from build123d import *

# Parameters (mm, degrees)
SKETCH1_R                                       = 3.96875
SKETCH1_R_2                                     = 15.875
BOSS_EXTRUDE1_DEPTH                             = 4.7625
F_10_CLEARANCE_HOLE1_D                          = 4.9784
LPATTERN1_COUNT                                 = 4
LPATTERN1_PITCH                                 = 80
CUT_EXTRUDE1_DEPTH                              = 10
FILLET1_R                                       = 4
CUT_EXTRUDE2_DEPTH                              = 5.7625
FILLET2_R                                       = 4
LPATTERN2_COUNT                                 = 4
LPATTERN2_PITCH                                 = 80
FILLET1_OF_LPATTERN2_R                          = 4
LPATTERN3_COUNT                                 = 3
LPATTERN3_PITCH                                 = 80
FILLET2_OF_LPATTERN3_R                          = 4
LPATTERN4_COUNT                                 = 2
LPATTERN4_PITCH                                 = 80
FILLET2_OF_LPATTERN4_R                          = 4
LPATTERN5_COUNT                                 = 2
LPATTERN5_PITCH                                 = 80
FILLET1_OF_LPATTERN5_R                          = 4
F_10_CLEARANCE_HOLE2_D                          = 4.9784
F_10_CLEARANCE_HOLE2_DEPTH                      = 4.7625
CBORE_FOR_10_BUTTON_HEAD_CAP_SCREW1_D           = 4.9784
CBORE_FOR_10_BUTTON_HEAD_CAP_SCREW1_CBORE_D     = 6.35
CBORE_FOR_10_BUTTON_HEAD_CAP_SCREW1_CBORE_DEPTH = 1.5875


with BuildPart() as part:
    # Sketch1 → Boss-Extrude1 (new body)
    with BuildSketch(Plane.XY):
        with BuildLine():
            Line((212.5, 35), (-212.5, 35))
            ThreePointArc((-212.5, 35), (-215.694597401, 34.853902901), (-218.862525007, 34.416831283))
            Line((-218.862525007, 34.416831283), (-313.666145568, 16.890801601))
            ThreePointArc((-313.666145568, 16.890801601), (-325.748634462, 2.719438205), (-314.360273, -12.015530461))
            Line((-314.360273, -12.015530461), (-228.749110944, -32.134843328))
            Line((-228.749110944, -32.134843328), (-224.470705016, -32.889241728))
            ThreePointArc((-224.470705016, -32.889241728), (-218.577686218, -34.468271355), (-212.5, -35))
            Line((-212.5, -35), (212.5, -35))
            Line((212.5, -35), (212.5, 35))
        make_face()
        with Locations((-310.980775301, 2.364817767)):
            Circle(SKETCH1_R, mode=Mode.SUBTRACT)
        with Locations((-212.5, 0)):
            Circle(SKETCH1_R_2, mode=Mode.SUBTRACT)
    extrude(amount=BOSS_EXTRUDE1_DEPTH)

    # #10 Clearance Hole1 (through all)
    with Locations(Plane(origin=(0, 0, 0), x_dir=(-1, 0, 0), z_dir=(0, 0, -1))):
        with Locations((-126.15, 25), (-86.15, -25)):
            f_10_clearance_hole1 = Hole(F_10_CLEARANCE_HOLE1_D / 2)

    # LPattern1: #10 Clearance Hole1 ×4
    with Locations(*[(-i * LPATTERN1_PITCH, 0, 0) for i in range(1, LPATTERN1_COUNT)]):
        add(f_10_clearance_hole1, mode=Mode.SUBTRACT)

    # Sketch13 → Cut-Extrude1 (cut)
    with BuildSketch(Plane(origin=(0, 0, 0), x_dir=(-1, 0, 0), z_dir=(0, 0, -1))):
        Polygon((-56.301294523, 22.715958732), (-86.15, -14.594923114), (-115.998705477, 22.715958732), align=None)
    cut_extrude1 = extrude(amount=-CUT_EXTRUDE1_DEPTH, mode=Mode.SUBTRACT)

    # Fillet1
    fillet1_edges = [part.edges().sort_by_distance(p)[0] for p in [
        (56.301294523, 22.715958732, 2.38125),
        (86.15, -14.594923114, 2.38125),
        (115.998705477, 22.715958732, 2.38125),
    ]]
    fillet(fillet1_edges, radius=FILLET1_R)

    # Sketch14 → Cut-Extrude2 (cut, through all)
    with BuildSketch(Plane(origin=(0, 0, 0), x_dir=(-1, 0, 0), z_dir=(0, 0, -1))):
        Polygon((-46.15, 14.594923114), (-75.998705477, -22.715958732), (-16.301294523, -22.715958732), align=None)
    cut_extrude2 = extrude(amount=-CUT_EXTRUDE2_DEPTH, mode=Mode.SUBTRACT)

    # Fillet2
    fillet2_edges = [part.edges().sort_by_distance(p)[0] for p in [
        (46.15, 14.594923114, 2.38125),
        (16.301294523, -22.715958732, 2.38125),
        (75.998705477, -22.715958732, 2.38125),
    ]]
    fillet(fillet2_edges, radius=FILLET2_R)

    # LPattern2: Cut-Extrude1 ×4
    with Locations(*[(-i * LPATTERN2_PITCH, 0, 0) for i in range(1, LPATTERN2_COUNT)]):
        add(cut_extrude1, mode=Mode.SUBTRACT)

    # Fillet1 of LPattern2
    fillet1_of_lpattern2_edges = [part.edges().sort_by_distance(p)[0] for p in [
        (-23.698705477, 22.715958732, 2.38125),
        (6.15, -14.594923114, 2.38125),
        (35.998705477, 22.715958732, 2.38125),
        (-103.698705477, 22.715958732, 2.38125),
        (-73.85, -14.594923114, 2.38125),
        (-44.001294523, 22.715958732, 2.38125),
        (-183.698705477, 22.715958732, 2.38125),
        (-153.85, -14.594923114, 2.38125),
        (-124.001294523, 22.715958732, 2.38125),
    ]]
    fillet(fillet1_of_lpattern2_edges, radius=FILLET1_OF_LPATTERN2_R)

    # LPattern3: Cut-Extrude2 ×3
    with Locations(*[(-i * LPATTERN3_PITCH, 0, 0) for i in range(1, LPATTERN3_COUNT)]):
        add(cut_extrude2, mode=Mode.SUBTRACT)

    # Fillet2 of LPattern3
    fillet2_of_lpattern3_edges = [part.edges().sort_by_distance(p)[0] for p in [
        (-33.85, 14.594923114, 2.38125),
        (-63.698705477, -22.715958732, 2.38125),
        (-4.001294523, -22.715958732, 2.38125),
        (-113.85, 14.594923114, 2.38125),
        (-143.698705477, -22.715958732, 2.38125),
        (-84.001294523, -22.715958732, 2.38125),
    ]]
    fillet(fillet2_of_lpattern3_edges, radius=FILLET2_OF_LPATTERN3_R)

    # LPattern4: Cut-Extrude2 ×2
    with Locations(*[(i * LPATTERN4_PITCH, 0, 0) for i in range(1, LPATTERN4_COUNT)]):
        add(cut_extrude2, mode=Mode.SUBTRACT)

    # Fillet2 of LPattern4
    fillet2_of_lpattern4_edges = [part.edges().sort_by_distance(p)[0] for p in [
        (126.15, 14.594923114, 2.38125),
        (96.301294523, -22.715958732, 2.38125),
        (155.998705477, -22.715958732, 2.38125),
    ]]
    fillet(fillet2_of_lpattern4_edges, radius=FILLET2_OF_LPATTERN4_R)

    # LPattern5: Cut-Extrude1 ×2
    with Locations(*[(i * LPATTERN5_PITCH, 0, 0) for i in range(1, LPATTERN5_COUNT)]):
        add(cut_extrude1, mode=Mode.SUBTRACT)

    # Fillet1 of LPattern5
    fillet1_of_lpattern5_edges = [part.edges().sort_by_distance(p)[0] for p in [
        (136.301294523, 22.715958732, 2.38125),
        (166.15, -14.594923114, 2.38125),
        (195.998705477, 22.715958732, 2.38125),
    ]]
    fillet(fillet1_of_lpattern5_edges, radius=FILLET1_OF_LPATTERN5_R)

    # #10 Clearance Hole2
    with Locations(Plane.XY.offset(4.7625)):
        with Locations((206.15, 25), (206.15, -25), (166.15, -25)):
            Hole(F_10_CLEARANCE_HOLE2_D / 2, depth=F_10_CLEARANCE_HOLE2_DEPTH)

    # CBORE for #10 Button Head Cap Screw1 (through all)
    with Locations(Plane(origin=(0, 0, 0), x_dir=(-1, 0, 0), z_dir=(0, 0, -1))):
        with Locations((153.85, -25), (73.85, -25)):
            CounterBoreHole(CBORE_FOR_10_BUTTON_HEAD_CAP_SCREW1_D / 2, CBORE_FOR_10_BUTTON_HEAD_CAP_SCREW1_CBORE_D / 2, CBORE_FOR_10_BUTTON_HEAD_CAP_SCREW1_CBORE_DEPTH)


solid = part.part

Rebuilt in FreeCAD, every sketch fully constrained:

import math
import FreeCAD as App
import Part
import Sketcher

V = App.Vector
Q = App.Units.Quantity


def edges_at(feature, points):
    """Names of the edges that pass closest to the given points."""
    edges = feature.Shape.Edges
    near = lambda p: min(range(len(edges)), key=lambda i: edges[i].distToShape(Part.Vertex(*p))[0])
    return sorted({f"Edge{near(p) + 1}" for p in points})

doc = App.newDocument("Part")
body = doc.addObject("PartDesign::Body", "Body")

# Sketch on XY plane
sketch1 = body.newObject("Sketcher::SketchObject", "Sketch")
sketch1.AttachmentSupport = (doc.getObject("XY_Plane"), [""])
sketch1.MapMode = "FlatFace"
sketch1.addGeometry(Part.LineSegment(V(212.5, 35, 0), V(-212.5, 35, 0)), False)
sketch1.addGeometry(Part.ArcOfCircle(Part.Circle(V(-212.5, 0, 0), V(0, 0, 1), 35), math.radians(90), math.radians(100.473832)), False)
sketch1.addGeometry(Part.LineSegment(V(-218.862525, 34.416831, 0), V(-313.666146, 16.890802, 0)), False)
sketch1.addGeometry(Part.ArcOfCircle(Part.Circle(V(-310.980775, 2.364818, 0), V(0, 0, 1), 14.772116), math.radians(100.473832), math.radians(256.775011)), False)
sketch1.addGeometry(Part.LineSegment(V(-314.360273, -12.01553, 0), V(-228.749111, -32.134843, 0)), False)
sketch1.addGeometry(Part.LineSegment(V(-228.749111, -32.134843, 0), V(-224.470705, -32.889242, 0)), False)
sketch1.addGeometry(Part.ArcOfCircle(Part.Circle(V(-212.5, 0, 0), V(0, 0, 1), 35), math.radians(-110), math.radians(-90)), False)
sketch1.addGeometry(Part.LineSegment(V(-212.5, -35, 0), V(212.5, -35, 0)), False)
sketch1.addGeometry(Part.LineSegment(V(212.5, -35, 0), V(212.5, 35, 0)), False)
sketch1.addGeometry(Part.Circle(V(-310.980775, 2.364818, 0), V(0, 0, 1), 3.96875), False)
sketch1.addGeometry(Part.Circle(V(-212.5, 0, 0), V(0, 0, 1), 15.875), False)
sketch1.addConstraint(Sketcher.Constraint("Tangent", 0, 2, 1, 1))
sketch1.addConstraint(Sketcher.Constraint("Tangent", 1, 2, 2, 1))
sketch1.addConstraint(Sketcher.Constraint("Tangent", 2, 2, 3, 1))
sketch1.addConstraint(Sketcher.Constraint("Tangent", 3, 2, 4, 1))
sketch1.addConstraint(Sketcher.Constraint("Coincident", 4, 2, 5, 1))
sketch1.addConstraint(Sketcher.Constraint("Coincident", 5, 2, 6, 1))
sketch1.addConstraint(Sketcher.Constraint("Tangent", 6, 2, 7, 1))
sketch1.addConstraint(Sketcher.Constraint("Coincident", 7, 2, 8, 1))
sketch1.addConstraint(Sketcher.Constraint("Coincident", 8, 2, 0, 1))
sketch1.addConstraint(Sketcher.Constraint("Horizontal", 0))
sketch1.addConstraint(Sketcher.Constraint("Horizontal", 7))
sketch1.addConstraint(Sketcher.Constraint("Vertical", 8))
sketch1.addConstraint(Sketcher.Constraint("Coincident", 6, 3, 1, 3))
sketch1.addConstraint(Sketcher.Constraint("Coincident", 9, 3, 3, 3))
sketch1.addConstraint(Sketcher.Constraint("Coincident", 10, 3, 1, 3))
sketch1.addConstraint(Sketcher.Constraint("Equal", 1, 6))
sketch1.addConstraint(Sketcher.Constraint("Symmetric", 0, 2, 7, 2, -1, 1))
sketch1.addConstraint(Sketcher.Constraint("Radius", 1, Q("35 mm")))
sketch1.addConstraint(Sketcher.Constraint("Diameter", 10, Q("31.75 mm")))
sketch1.addConstraint(Sketcher.Constraint("DistanceX", 0, 2, 0, 1, Q("425 mm")))
sketch1.addConstraint(Sketcher.Constraint("Angle", 5, Q("-10 deg")))
sketch1.addConstraint(Sketcher.Constraint("Diameter", 9, Q("7.9375 mm")))
sketch1.addConstraint(Sketcher.Constraint("Distance", 2, Q("96.41 mm")))
sketch1.addConstraint(Sketcher.Constraint("Radius", 3, Q("14.772116 mm")))
sketch1.addConstraint(Sketcher.Constraint("DistanceY", -1, 1, 2, 2, Q("16.890802 mm")))
sketch1.addConstraint(Sketcher.Constraint("DistanceY", 5, 2, 4, 2, Q("0.754398 mm")))
sketch1.addConstraint(Sketcher.Constraint("DistanceX", 4, 2, -1, 1, Q("228.749111 mm")))
pad1 = body.newObject("PartDesign::Pad", "Pad")
pad1.Profile = sketch1
pad1.Length = 4.7625

# Sketch on XY plane
sketch2 = body.newObject("Sketcher::SketchObject", "Sketch001")
sketch2.AttachmentSupport = (doc.getObject("XY_Plane"), [""])
sketch2.MapMode = "FlatFace"
sketch2.addGeometry(Part.Circle(V(126.15, 25, 0), V(0, 0, 1), 2.4892), False)
sketch2.addGeometry(Part.Circle(V(86.15, -25, 0), V(0, 0, 1), 2.4892), False)
sketch2.addConstraint(Sketcher.Constraint("Equal", 0, 1))
sketch2.addConstraint(Sketcher.Constraint("DistanceY", -1, 1, 0, 3, Q("25 mm")))
sketch2.addConstraint(Sketcher.Constraint("DistanceY", 1, 3, -1, 1, Q("25 mm")))
sketch2.addConstraint(Sketcher.Constraint("DistanceX", 1, 3, 0, 3, Q("40 mm")))
sketch2.addConstraint(Sketcher.Constraint("Diameter", 0, Q("4.9784 mm")))
sketch2.addConstraint(Sketcher.Constraint("DistanceX", -1, 1, 0, 3, Q("126.15 mm")))
doc.recompute()
hole = body.newObject("PartDesign::Hole", "Hole")
hole.Profile = sketch2
hole.ThreadType = "None"
hole.Diameter = 4.9784
hole.DepthType = "ThroughAll"
hole.Reversed = True
doc.recompute()

linearpattern = body.newObject("PartDesign::LinearPattern", "LinearPattern")
linearpattern.Originals = [hole]
linearpattern.Direction = (doc.getObject("X_Axis"), [""])
linearpattern.Mode = "offset"
linearpattern.Offset = 80
linearpattern.Occurrences = 4
linearpattern.Reversed = True
body.Tip = linearpattern

# Sketch on XY plane
sketch3 = body.newObject("Sketcher::SketchObject", "Sketch002")
sketch3.AttachmentSupport = (doc.getObject("XY_Plane"), [""])
sketch3.MapMode = "FlatFace"
sketch3.addGeometry(Part.LineSegment(V(86.15, -14.594923, 0), V(56.301295, 22.715959, 0)), False)
sketch3.addGeometry(Part.LineSegment(V(56.301295, 22.715959, 0), V(115.998705, 22.715959, 0)), False)
sketch3.addGeometry(Part.LineSegment(V(115.998705, 22.715959, 0), V(86.15, -14.594923, 0)), False)
sketch3.addConstraint(Sketcher.Constraint("Coincident", 0, 2, 1, 1))
sketch3.addConstraint(Sketcher.Constraint("Coincident", 1, 2, 2, 1))
sketch3.addConstraint(Sketcher.Constraint("Coincident", 2, 2, 0, 1))
sketch3.addConstraint(Sketcher.Constraint("Horizontal", 1))
sketch3.addConstraint(Sketcher.Constraint("Equal", 0, 2))
sketch3.addConstraint(Sketcher.Constraint("DistanceX", -1, 1, 2, 2, Q("86.15 mm")))
sketch3.addConstraint(Sketcher.Constraint("DistanceX", 1, 1, 1, 2, Q("59.697411 mm")))
sketch3.addConstraint(Sketcher.Constraint("DistanceY", -1, 1, 0, 2, Q("22.715959 mm")))
sketch3.addConstraint(Sketcher.Constraint("DistanceY", 2, 2, 0, 2, Q("37.310882 mm")))
pocket1 = body.newObject("PartDesign::Pocket", "Pocket")
pocket1.Profile = sketch3
pocket1.Length = 10
pocket1.Reversed = True
doc.recompute()

fillet = body.newObject("PartDesign::Fillet", "Fillet")
fillet.Base = (pocket1, edges_at(pocket1, [(56.301, 22.716, 2.381), (86.15, -14.595, 2.381), (115.999, 22.716, 2.381)]))
fillet.Radius = 4

# Sketch on XY plane
sketch4 = body.newObject("Sketcher::SketchObject", "Sketch003")
sketch4.AttachmentSupport = (doc.getObject("XY_Plane"), [""])
sketch4.MapMode = "FlatFace"
sketch4.addGeometry(Part.LineSegment(V(46.15, 14.594923, 0), V(75.998705, -22.715959, 0)), False)
sketch4.addGeometry(Part.LineSegment(V(75.998705, -22.715959, 0), V(16.301295, -22.715959, 0)), False)
sketch4.addGeometry(Part.LineSegment(V(16.301295, -22.715959, 0), V(46.15, 14.594923, 0)), False)
sketch4.addConstraint(Sketcher.Constraint("Coincident", 0, 2, 1, 1))
sketch4.addConstraint(Sketcher.Constraint("Coincident", 1, 2, 2, 1))
sketch4.addConstraint(Sketcher.Constraint("Coincident", 2, 2, 0, 1))
sketch4.addConstraint(Sketcher.Constraint("Horizontal", 1))
sketch4.addConstraint(Sketcher.Constraint("Equal", 0, 2))
sketch4.addConstraint(Sketcher.Constraint("DistanceX", -1, 1, 2, 2, Q("46.15 mm")))
sketch4.addConstraint(Sketcher.Constraint("DistanceX", 1, 2, 1, 1, Q("59.697411 mm")))
sketch4.addConstraint(Sketcher.Constraint("DistanceY", 0, 2, -1, 1, Q("22.715959 mm")))
sketch4.addConstraint(Sketcher.Constraint("DistanceY", 0, 2, 2, 2, Q("37.310882 mm")))
pocket2 = body.newObject("PartDesign::Pocket", "Pocket001")
pocket2.Profile = sketch4
pocket2.Type = "ThroughAll"
pocket2.Reversed = True
doc.recompute()

fillet2 = body.newObject("PartDesign::Fillet", "Fillet001")
fillet2.Base = (pocket2, edges_at(pocket2, [(46.15, 14.595, 2.381), (16.301, -22.716, 2.381), (75.999, -22.716, 2.381)]))
fillet2.Radius = 4
doc.recompute()

linearpattern2 = body.newObject("PartDesign::LinearPattern", "LinearPattern001")
linearpattern2.Originals = [pocket1]
linearpattern2.Direction = (doc.getObject("X_Axis"), [""])
linearpattern2.Mode = "offset"
linearpattern2.Offset = 80
linearpattern2.Occurrences = 4
linearpattern2.Reversed = True
body.Tip = linearpattern2
doc.recompute()

fillet3 = body.newObject("PartDesign::Fillet", "Fillet002")
fillet3.Base = (linearpattern2, edges_at(linearpattern2, [
    (-23.699, 22.716, 2.381),
    (6.15, -14.595, 2.381),
    (35.999, 22.716, 2.381),
    (-103.699, 22.716, 2.381),
    (-73.85, -14.595, 2.381),
    (-44.001, 22.716, 2.381),
    (-183.699, 22.716, 2.381),
    (-153.85, -14.595, 2.381),
    (-124.001, 22.716, 2.381),
]))
fillet3.Radius = 4
doc.recompute()

linearpattern3 = body.newObject("PartDesign::LinearPattern", "LinearPattern002")
linearpattern3.Originals = [pocket2]
linearpattern3.Direction = (doc.getObject("X_Axis"), [""])
linearpattern3.Mode = "offset"
linearpattern3.Offset = 80
linearpattern3.Occurrences = 3
linearpattern3.Reversed = True
body.Tip = linearpattern3
doc.recompute()

fillet4 = body.newObject("PartDesign::Fillet", "Fillet003")
fillet4.Base = (linearpattern3, edges_at(linearpattern3, [
    (-33.85, 14.595, 2.381),
    (-63.699, -22.716, 2.381),
    (-4.001, -22.716, 2.381),
    (-113.85, 14.595, 2.381),
    (-143.699, -22.716, 2.381),
    (-84.001, -22.716, 2.381),
]))
fillet4.Radius = 4
doc.recompute()

linearpattern4 = body.newObject("PartDesign::LinearPattern", "LinearPattern003")
linearpattern4.Originals = [pocket2]
linearpattern4.Direction = (doc.getObject("X_Axis"), [""])
linearpattern4.Mode = "offset"
linearpattern4.Offset = 80
linearpattern4.Occurrences = 2
body.Tip = linearpattern4
doc.recompute()

fillet5 = body.newObject("PartDesign::Fillet", "Fillet004")
fillet5.Base = (linearpattern4, edges_at(linearpattern4, [(126.15, 14.595, 2.381), (96.301, -22.716, 2.381), (155.999, -22.716, 2.381)]))
fillet5.Radius = 4
doc.recompute()

linearpattern5 = body.newObject("PartDesign::LinearPattern", "LinearPattern004")
linearpattern5.Originals = [pocket1]
linearpattern5.Direction = (doc.getObject("X_Axis"), [""])
linearpattern5.Mode = "offset"
linearpattern5.Offset = 80
linearpattern5.Occurrences = 2
body.Tip = linearpattern5
doc.recompute()

fillet6 = body.newObject("PartDesign::Fillet", "Fillet005")
fillet6.Base = (linearpattern5, edges_at(linearpattern5, [(136.301, 22.716, 2.381), (166.15, -14.595, 2.381), (195.999, 22.716, 2.381)]))
fillet6.Radius = 4

# Sketch on XY plane
sketch5 = body.newObject("Sketcher::SketchObject", "Sketch004")
sketch5.AttachmentSupport = (doc.getObject("XY_Plane"), [""])
sketch5.MapMode = "FlatFace"
sketch5.AttachmentOffset = App.Placement(V(0, 0, 4.7625), App.Rotation())
sketch5.addGeometry(Part.Circle(V(206.15, 25, 0), V(0, 0, 1), 2.4892), False)
sketch5.addGeometry(Part.Circle(V(206.15, -25, 0), V(0, 0, 1), 2.4892), False)
sketch5.addGeometry(Part.Circle(V(166.15, -25, 0), V(0, 0, 1), 2.4892), False)
sketch5.addConstraint(Sketcher.Constraint("Equal", 0, 1))
sketch5.addConstraint(Sketcher.Constraint("Equal", 1, 2))
sketch5.addConstraint(Sketcher.Constraint("Symmetric", 0, 3, 1, 3, -1))
sketch5.addConstraint(Sketcher.Constraint("Horizontal", 1, 3, 2, 3))
sketch5.addConstraint(Sketcher.Constraint("DistanceY", -1, 1, 0, 3, Q("25 mm")))
sketch5.addConstraint(Sketcher.Constraint("DistanceX", 2, 3, 1, 3, Q("40 mm")))
sketch5.addConstraint(Sketcher.Constraint("Diameter", 0, Q("4.9784 mm")))
sketch5.addConstraint(Sketcher.Constraint("DistanceX", -1, 1, 0, 3, Q("206.15 mm")))
doc.recompute()
hole2 = body.newObject("PartDesign::Hole", "Hole001")
hole2.Profile = sketch5
hole2.ThreadType = "None"
hole2.Diameter = 4.9784
hole2.DepthType = "Dimension"
hole2.Depth = 4.7625
hole2.DrillPoint = "Flat"

# Sketch on XY plane
sketch6 = body.newObject("Sketcher::SketchObject", "Sketch005")
sketch6.AttachmentSupport = (doc.getObject("XY_Plane"), [""])
sketch6.MapMode = "FlatFace"
sketch6.addGeometry(Part.Circle(V(-153.85, -25, 0), V(0, 0, 1), 2.4892), False)
sketch6.addGeometry(Part.Circle(V(-73.85, -25, 0), V(0, 0, 1), 2.4892), False)
sketch6.addConstraint(Sketcher.Constraint("Equal", 0, 1))
sketch6.addConstraint(Sketcher.Constraint("Horizontal", 0, 3, 1, 3))
sketch6.addConstraint(Sketcher.Constraint("DistanceY", 0, 3, -1, 1, Q("25 mm")))
sketch6.addConstraint(Sketcher.Constraint("DistanceX", 0, 3, 1, 3, Q("80 mm")))
sketch6.addConstraint(Sketcher.Constraint("Diameter", 0, Q("4.9784 mm")))
sketch6.addConstraint(Sketcher.Constraint("DistanceX", 0, 3, -1, 1, Q("153.85 mm")))
doc.recompute()
hole3 = body.newObject("PartDesign::Hole", "Hole002")
hole3.Profile = sketch6
hole3.ThreadType = "None"
hole3.Diameter = 4.9784
hole3.DepthType = "ThroughAll"
hole3.HoleCutType = "Counterbore"
hole3.HoleCutDiameter = 6.35
hole3.HoleCutDepth = 1.5875
hole3.Reversed = True

doc.recompute()
